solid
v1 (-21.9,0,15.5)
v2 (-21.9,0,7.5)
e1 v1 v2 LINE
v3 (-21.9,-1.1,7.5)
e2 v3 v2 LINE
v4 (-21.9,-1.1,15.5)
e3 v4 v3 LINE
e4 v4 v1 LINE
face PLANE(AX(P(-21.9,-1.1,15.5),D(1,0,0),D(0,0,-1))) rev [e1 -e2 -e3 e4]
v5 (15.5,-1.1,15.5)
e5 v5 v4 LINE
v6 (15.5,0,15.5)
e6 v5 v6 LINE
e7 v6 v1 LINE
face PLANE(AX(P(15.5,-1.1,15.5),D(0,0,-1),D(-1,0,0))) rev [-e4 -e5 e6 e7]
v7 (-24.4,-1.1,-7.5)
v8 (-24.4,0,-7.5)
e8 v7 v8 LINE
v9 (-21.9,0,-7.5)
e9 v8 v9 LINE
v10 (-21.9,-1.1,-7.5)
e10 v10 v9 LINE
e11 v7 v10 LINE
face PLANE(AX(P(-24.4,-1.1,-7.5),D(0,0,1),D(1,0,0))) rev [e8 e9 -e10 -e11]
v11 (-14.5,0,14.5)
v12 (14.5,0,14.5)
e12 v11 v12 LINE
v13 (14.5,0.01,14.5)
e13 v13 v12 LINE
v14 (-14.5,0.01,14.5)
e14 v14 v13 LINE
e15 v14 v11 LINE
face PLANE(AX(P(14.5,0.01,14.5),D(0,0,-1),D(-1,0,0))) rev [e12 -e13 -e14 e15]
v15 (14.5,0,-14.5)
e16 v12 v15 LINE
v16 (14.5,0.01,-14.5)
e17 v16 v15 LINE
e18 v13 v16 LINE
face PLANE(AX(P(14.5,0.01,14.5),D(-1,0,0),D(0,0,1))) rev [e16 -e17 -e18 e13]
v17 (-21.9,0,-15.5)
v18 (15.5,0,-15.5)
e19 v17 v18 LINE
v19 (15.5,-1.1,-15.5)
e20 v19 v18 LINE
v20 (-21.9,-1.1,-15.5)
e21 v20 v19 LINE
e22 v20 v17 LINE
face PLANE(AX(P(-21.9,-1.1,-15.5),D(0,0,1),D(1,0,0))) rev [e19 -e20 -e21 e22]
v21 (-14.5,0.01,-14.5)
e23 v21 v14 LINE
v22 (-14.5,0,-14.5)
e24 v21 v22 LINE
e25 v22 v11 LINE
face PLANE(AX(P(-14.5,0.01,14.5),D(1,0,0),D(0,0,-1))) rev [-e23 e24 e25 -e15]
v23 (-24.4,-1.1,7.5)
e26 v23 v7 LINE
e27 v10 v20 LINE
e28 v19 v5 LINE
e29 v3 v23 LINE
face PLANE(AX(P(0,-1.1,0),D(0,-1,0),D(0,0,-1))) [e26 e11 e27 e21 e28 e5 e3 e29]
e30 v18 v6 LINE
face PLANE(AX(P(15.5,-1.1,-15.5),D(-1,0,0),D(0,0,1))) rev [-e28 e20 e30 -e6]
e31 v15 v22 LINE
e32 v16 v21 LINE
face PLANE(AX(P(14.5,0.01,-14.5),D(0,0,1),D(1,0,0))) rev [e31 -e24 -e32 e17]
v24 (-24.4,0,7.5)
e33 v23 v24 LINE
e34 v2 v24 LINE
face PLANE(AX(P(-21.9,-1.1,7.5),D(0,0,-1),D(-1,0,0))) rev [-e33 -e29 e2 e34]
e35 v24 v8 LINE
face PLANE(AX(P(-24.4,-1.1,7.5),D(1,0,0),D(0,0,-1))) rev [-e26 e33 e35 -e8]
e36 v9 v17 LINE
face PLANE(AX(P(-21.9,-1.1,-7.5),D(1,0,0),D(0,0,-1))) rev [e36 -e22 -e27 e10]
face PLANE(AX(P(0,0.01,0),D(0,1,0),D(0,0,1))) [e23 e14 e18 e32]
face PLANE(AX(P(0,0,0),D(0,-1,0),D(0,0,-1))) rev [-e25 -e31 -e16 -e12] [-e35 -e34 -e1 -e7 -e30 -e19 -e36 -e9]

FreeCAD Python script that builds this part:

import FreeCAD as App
import Part
import Sketcher
from FreeCAD import Vector
Q = App.Units.Quantity


def add_polygon(sketch, points):
    """Adds a closed chain of lines whose ends are joined by coincident constraints."""
    first, n = sketch.GeometryCount, len(points)
    for a, b in zip(points, points[1:] + points[:1]):
        sketch.addGeometry(Part.LineSegment(App.Vector(*a, 0), App.Vector(*b, 0)), False)
    for i in range(n):
        sketch.addConstraint(Sketcher.Constraint("Coincident", first + i, 2, first + (i + 1) % n, 1))

doc = App.newDocument("Part")
params = doc.addObject("Spreadsheet::Sheet", "Params")
for row, (alias, value) in enumerate([
    ("sketch1_width", "29 mm"),
    ("pad1_length", "0.01 mm"),
    ("sketch2_height", "8 mm"),
    ("sketch2_height2", "15 mm"),
    ("sketch2_width", "2.5 mm"),
    ("sketch2_width2", "37.4 mm"),
    ("pad2_length", "1.1 mm"),
], start=1):
    params.set(f"A{row}", alias)
    params.set(f"B{row}", "=" + value)
    params.setAlias(f"B{row}", alias)

body = doc.addObject("PartDesign::Body", "Body")

sketch1 = doc.addObject("Sketcher::SketchObject", "Sketch")
body.addObject(sketch1)
sketch1.AttachmentSupport = (doc.XZ_Plane, [""])
sketch1.MapMode = "FlatFace"
add_polygon(sketch1, [(-14, -14), (-14, 14), (14, 14), (14, -14)])
sketch1.addConstraint(Sketcher.Constraint("Vertical", 0))
sketch1.addConstraint(Sketcher.Constraint("Horizontal", 1))
sketch1.addConstraint(Sketcher.Constraint("Vertical", 2))
sketch1.addConstraint(Sketcher.Constraint("Horizontal", 3))
sketch1.addConstraint(Sketcher.Constraint("Symmetric", 0, 2, 2, 2, -1, 1))
sketch1.addConstraint(Sketcher.Constraint("Equal", 3, 0))
sketch1.addConstraint(Sketcher.Constraint("DistanceX", 1, 1, 1, 2, Q("29 mm")))
sketch1.setExpression("Constraints[10]", "Params.sketch1_width")
pad1 = doc.addObject("PartDesign::Pad", "Pad")
body.addObject(pad1)
pad1.Profile = sketch1
pad1.setExpression("Length", "Params.pad1_length")
pad1.Reversed = True

sketch2 = doc.addObject("Sketcher::SketchObject", "Sketch001")
body.addObject(sketch2)
sketch2.AttachmentSupport = (doc.XZ_Plane, [""])
sketch2.MapMode = "FlatFace"
add_polygon(sketch2, [(-21.9, 15.5), (-21.9, 7.5), (-24.4, 7.5), (-24.4, -7.5), (-21.9, -7.5), (-21.9, -15.5), (15.5, -15.5), (15.5, 15.5)])
sketch2.addConstraint(Sketcher.Constraint("Vertical", 0))
sketch2.addConstraint(Sketcher.Constraint("Horizontal", 1))
sketch2.addConstraint(Sketcher.Constraint("Vertical", 2))
sketch2.addConstraint(Sketcher.Constraint("Horizontal", 3))
sketch2.addConstraint(Sketcher.Constraint("Vertical", 4))
sketch2.addConstraint(Sketcher.Constraint("Horizontal", 5))
sketch2.addConstraint(Sketcher.Constraint("Vertical", 6))
sketch2.addConstraint(Sketcher.Constraint("Horizontal", 7))
sketch2.addConstraint(Sketcher.Constraint("Symmetric", 0, 2, 3, 2, -1))
sketch2.addConstraint(Sketcher.Constraint("Equal", 0, 4))
sketch2.addConstraint(Sketcher.Constraint("DistanceY", 0, 2, 0, 1, Q("8 mm")))
sketch2.addConstraint(Sketcher.Constraint("DistanceY", 2, 2, 2, 1, Q("15 mm")))
sketch2.addConstraint(Sketcher.Constraint("DistanceX", 1, 2, 1, 1, Q("2.5 mm")))
sketch2.addConstraint(Sketcher.Constraint("DistanceX", 5, 1, 5, 2, Q("37.4 mm")))
sketch2.addConstraint(Sketcher.Constraint("DistanceX", 0, 2, -1, 1, Q("21.9 mm")))
sketch2.setExpression("Constraints[18]", "Params.sketch2_height")
sketch2.setExpression("Constraints[19]", "Params.sketch2_height2")
sketch2.setExpression("Constraints[20]", "Params.sketch2_width")
sketch2.setExpression("Constraints[21]", "Params.sketch2_width2")
pad2 = doc.addObject("PartDesign::Pad", "Pad001")
body.addObject(pad2)
pad2.Profile = sketch2
pad2.setExpression("Length", "Params.pad2_length")

doc.recompute()
